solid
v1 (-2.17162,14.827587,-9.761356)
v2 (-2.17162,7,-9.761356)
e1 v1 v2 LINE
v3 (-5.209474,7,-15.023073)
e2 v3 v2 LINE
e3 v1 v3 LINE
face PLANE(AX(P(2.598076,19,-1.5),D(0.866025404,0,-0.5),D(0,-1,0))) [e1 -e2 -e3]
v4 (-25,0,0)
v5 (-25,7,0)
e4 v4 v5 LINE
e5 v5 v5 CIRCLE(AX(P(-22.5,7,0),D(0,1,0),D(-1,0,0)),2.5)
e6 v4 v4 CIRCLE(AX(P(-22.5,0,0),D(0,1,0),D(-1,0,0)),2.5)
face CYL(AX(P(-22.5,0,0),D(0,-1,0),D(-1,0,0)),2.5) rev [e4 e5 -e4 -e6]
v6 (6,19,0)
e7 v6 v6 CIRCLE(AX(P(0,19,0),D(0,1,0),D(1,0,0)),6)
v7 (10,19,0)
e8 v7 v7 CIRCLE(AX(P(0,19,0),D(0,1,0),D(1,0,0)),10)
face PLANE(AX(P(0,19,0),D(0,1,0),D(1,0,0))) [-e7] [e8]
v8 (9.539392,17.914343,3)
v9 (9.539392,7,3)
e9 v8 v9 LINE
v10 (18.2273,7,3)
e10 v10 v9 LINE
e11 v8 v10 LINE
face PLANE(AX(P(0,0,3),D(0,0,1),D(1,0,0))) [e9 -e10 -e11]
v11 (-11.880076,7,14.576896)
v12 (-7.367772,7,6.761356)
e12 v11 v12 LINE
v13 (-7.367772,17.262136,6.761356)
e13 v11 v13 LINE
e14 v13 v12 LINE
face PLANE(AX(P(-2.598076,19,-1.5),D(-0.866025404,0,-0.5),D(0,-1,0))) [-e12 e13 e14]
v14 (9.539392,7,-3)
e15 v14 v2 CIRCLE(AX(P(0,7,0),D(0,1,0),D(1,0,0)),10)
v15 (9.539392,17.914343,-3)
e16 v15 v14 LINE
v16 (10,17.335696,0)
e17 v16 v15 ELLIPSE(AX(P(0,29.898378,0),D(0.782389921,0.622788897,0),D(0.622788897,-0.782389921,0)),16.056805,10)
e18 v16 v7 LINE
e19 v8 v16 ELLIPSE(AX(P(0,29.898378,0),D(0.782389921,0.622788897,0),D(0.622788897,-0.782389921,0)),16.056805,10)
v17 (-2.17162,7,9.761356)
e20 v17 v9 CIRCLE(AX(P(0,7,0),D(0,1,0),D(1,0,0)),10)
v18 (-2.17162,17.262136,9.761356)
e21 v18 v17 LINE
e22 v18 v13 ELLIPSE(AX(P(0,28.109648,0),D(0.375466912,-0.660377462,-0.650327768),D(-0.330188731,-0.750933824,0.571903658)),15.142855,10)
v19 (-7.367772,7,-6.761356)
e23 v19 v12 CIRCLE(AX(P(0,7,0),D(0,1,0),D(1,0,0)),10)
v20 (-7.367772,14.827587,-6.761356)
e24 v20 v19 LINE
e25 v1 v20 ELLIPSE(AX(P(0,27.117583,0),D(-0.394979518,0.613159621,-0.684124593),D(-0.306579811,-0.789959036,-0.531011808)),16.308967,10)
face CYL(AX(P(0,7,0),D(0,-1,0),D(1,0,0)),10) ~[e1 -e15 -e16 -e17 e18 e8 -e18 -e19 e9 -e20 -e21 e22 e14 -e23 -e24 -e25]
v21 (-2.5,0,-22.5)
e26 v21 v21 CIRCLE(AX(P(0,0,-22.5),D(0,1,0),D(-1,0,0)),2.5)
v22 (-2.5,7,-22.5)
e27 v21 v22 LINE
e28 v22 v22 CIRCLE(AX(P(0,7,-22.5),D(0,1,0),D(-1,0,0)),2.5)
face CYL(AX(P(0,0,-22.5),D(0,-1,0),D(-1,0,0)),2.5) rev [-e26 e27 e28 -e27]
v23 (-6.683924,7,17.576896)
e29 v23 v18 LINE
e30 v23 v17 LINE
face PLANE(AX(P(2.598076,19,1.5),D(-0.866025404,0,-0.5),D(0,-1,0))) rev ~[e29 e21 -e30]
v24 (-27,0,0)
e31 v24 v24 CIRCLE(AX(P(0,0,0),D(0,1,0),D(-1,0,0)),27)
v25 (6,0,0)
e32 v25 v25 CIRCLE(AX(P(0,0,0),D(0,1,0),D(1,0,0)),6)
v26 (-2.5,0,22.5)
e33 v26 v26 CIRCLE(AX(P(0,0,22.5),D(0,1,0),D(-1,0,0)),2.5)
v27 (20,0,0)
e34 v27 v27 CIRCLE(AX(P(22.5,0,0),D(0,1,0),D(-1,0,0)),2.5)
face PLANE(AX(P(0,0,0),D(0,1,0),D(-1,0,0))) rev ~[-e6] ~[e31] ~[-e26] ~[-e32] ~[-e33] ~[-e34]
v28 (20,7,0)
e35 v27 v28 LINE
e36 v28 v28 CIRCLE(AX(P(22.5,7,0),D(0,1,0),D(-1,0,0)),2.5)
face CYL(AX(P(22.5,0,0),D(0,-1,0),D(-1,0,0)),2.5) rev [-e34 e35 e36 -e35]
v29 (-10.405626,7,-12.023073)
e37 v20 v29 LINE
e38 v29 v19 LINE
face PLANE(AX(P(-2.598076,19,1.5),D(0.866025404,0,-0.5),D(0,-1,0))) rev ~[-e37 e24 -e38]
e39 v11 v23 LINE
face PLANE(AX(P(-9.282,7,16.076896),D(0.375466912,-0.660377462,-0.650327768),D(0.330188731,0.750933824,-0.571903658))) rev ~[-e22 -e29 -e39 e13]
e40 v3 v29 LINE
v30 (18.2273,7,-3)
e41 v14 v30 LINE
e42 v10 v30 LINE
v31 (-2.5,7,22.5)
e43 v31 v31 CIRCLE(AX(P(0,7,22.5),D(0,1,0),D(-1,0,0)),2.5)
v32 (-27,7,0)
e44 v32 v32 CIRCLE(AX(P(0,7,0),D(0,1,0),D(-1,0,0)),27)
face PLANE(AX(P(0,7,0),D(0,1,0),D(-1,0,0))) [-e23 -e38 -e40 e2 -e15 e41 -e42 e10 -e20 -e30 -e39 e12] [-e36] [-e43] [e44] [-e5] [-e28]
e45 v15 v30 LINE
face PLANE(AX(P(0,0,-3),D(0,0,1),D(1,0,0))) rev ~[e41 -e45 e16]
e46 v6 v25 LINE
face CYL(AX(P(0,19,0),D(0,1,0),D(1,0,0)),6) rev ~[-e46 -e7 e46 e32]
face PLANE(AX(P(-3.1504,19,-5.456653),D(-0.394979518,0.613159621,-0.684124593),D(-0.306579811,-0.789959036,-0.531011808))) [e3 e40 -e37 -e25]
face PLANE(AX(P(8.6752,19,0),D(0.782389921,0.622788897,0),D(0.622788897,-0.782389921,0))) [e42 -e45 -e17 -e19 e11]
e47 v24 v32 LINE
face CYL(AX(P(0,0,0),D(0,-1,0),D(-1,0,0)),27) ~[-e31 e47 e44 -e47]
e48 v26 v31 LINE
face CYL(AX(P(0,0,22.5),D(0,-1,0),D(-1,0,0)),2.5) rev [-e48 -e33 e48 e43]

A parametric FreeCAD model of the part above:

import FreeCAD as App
import Part
import Sketcher
Q = App.Units.Quantity


def add_polygon(sketch, points):
    """Adds a closed chain of lines whose ends are joined by coincident constraints."""
    first, n = sketch.GeometryCount, len(points)
    for a, b in zip(points, points[1:] + points[:1]):
        sketch.addGeometry(Part.LineSegment(App.Vector(*a, 0), App.Vector(*b, 0)), False)
    for i in range(n):
        sketch.addConstraint(Sketcher.Constraint("Coincident", first + i, 2, first + (i + 1) % n, 1))

doc = App.newDocument("Part")
params = doc.addObject("Spreadsheet::Sheet", "Params")
for row, (alias, value) in enumerate([
    ("sketch1_diameter", "54 mm"),
    ("sketch1_diameter2", "5 mm"),
    ("pad1_length", "7 mm"),
    ("sketch2_diameter", "20 mm"),
    ("pad2_length", "12 mm"),
    ("sketch3_diameter", "12 mm"),
    ("pocket1_length", "19 mm"),
    ("sketch4_height", "12 mm"),
    ("pad3_length", "6 mm"),
    ("sketch5_width", "12 mm"),
    ("sketch5_length", "15.98 mm"),
    ("pad4_length", "6 mm"),
    ("sketch6_width", "12 mm"),
    ("pad5_length", "6 mm"),
], start=1):
    params.set(f"A{row}", alias)
    params.set(f"B{row}", "=" + value)
    params.setAlias(f"B{row}", alias)

body = doc.addObject("PartDesign::Body", "Body")

sketch1 = body.newObject("Sketcher::SketchObject", "Sketch")
sketch1.AttachmentSupport = (doc.getObject("XZ_Plane"), [""])
sketch1.MapMode = "FlatFace"
sketch1.addGeometry([
    Part.Circle(App.Vector(0, 0, 0), App.Vector(0, 0, 1), 27),
    Part.Circle(App.Vector(0, -22.5, 0), App.Vector(0, 0, 1), 2.5),
    Part.Circle(App.Vector(22.5, 0, 0), App.Vector(0, 0, 1), 2.5),
    Part.Circle(App.Vector(-22.5, 0, 0), App.Vector(0, 0, 1), 2.5),
    Part.Circle(App.Vector(0, 22.5, 0), App.Vector(0, 0, 1), 2.5),
], False)
sketch1.addConstraint([
    Sketcher.Constraint("Coincident", 0, 3, -1, 1),
    Sketcher.Constraint("Equal", 1, 2),
    Sketcher.Constraint("Equal", 2, 3),
    Sketcher.Constraint("Equal", 3, 4),
    Sketcher.Constraint("Symmetric", 2, 3, 3, 3, -1, 1),
    Sketcher.Constraint("Symmetric", 1, 3, 4, 3, -1, 1),
    Sketcher.Constraint("PointOnObject", 1, 3, -2),
    Sketcher.Constraint("PointOnObject", 2, 3, -1),
    Sketcher.Constraint("Diameter", 0, 54.0),
    Sketcher.Constraint("Diameter", 1, 5.0),
    Sketcher.Constraint("DistanceX", 3, 3, 2, 3, 45.0),
    Sketcher.Constraint("DistanceY", 1, 3, 4, 3, 45.0),
])
sketch1.setExpression("Constraints[8]", "Params.sketch1_diameter")
sketch1.setExpression("Constraints[9]", "Params.sketch1_diameter2")
pad1 = body.newObject("PartDesign::Pad", "Pad")
pad1.Profile = sketch1
pad1.setExpression("Length", "Params.pad1_length")
pad1.Reversed = True

sketch2 = body.newObject("Sketcher::SketchObject", "Sketch001")
sketch2.AttachmentSupport = (doc.getObject("XZ_Plane"), [""])
sketch2.MapMode = "FlatFace"
sketch2.AttachmentOffset = App.Placement(App.Vector(0, 0, -7), App.Rotation())
sketch2.addGeometry(Part.Circle(App.Vector(0, 0, 0), App.Vector(0, 0, 1), 10), False)
sketch2.addConstraint([
    Sketcher.Constraint("Coincident", 0, 3, -1, 1),
    Sketcher.Constraint("Diameter", 0, 20.0),
])
sketch2.setExpression("Constraints[1]", "Params.sketch2_diameter")
pad2 = body.newObject("PartDesign::Pad", "Pad001")
pad2.Profile = sketch2
pad2.setExpression("Length", "Params.pad2_length")
pad2.Reversed = True

sketch3 = body.newObject("Sketcher::SketchObject", "Sketch002")
sketch3.AttachmentSupport = (doc.getObject("XZ_Plane"), [""])
sketch3.MapMode = "FlatFace"
sketch3.AttachmentOffset = App.Placement(App.Vector(0, 0, -19), App.Rotation())
sketch3.addGeometry(Part.Circle(App.Vector(0, 0, 0), App.Vector(0, 0, 1), 6), False)
sketch3.addConstraint([
    Sketcher.Constraint("Coincident", 0, 3, -1, 1),
    Sketcher.Constraint("Diameter", 0, 12.0),
])
sketch3.setExpression("Constraints[1]", "Params.sketch3_diameter")
pocket1 = body.newObject("PartDesign::Pocket", "Pocket")
pocket1.Profile = sketch3
pocket1.setExpression("Length", "Params.pocket1_length")
pocket1.Reversed = True

sketch4 = body.newObject("Sketcher::SketchObject", "Sketch003")
sketch4.AttachmentSupport = (doc.getObject("XY_Plane"), [""])
sketch4.MapMode = "FlatFace"
add_polygon(sketch4, [(9, 19), (9, 7), (18, 7)])
sketch4.addConstraint([
    Sketcher.Constraint("Vertical", 0),
    Sketcher.Constraint("Horizontal", 1),
    Sketcher.Constraint("DistanceY", 0, 2, 0, 1, 12.0),
    Sketcher.Constraint("DistanceY", -1, 1, 0, 2, 7.0),
    Sketcher.Constraint("Angle", 2, Q("128.52 deg")),
    Sketcher.Constraint("DistanceX", -1, 1, 0, 2, 8.6752),
])
sketch4.setExpression("Constraints[5]", "Params.sketch4_height")
pad3 = body.newObject("PartDesign::Pad", "Pad002")
pad3.Profile = sketch4
pad3.setExpression("Length", "Params.pad3_length")
pad3.Midplane = True

sketch5 = body.newObject("Sketcher::SketchObject", "Sketch004")
sketch5.Placement = App.Placement(App.Vector(0, 19, 0), App.Rotation(App.Vector(0, -1, 0), App.Vector(-0.5, 0, 0.866025404), App.Vector(-0.866025404, 0, -0.5), "ZXY"))
add_polygon(sketch5, [(0, 8), (12, 8), (12, 19)])
sketch5.addConstraint([
    Sketcher.Constraint("Horizontal", 0),
    Sketcher.Constraint("Vertical", 1),
    Sketcher.Constraint("PointOnObject", 2, 2, -2),
    Sketcher.Constraint("DistanceX", 0, 1, 0, 2, 12.0),
    Sketcher.Constraint("Distance", 2, 15.98),
    Sketcher.Constraint("DistanceY", -1, 1, 0, 2, 8.011),
])
sketch5.setExpression("Constraints[6]", "Params.sketch5_width")
sketch5.setExpression("Constraints[7]", "Params.sketch5_length")
pad4 = body.newObject("PartDesign::Pad", "Pad003")
pad4.Profile = sketch5
pad4.setExpression("Length", "Params.pad4_length")
pad4.Midplane = True

sketch6 = body.newObject("Sketcher::SketchObject", "Sketch005")
sketch6.Placement = App.Placement(App.Vector(0, 19, 0), App.Rotation(App.Vector(0, -1, 0), App.Vector(-0.5, 0, -0.866025404), App.Vector(0.866025404, 0, -0.5), "ZXY"))
add_polygon(sketch6, [(0, 6), (12, 6), (12, 16)])
sketch6.addConstraint([
    Sketcher.Constraint("Horizontal", 0),
    Sketcher.Constraint("Vertical", 1),
    Sketcher.Constraint("PointOnObject", 2, 2, -2),
    Sketcher.Constraint("DistanceX", 0, 1, 0, 2, 12.0),
    Sketcher.Constraint("DistanceY", 1, 1, 1, 2, 9.3143),
    Sketcher.Constraint("DistanceY", -1, 1, 1, 2, 15.615),
])
sketch6.setExpression("Constraints[6]", "Params.sketch6_width")
pad5 = body.newObject("PartDesign::Pad", "Pad004")
pad5.Profile = sketch6
pad5.setExpression("Length", "Params.pad5_length")
pad5.Midplane = True

doc.recompute()
